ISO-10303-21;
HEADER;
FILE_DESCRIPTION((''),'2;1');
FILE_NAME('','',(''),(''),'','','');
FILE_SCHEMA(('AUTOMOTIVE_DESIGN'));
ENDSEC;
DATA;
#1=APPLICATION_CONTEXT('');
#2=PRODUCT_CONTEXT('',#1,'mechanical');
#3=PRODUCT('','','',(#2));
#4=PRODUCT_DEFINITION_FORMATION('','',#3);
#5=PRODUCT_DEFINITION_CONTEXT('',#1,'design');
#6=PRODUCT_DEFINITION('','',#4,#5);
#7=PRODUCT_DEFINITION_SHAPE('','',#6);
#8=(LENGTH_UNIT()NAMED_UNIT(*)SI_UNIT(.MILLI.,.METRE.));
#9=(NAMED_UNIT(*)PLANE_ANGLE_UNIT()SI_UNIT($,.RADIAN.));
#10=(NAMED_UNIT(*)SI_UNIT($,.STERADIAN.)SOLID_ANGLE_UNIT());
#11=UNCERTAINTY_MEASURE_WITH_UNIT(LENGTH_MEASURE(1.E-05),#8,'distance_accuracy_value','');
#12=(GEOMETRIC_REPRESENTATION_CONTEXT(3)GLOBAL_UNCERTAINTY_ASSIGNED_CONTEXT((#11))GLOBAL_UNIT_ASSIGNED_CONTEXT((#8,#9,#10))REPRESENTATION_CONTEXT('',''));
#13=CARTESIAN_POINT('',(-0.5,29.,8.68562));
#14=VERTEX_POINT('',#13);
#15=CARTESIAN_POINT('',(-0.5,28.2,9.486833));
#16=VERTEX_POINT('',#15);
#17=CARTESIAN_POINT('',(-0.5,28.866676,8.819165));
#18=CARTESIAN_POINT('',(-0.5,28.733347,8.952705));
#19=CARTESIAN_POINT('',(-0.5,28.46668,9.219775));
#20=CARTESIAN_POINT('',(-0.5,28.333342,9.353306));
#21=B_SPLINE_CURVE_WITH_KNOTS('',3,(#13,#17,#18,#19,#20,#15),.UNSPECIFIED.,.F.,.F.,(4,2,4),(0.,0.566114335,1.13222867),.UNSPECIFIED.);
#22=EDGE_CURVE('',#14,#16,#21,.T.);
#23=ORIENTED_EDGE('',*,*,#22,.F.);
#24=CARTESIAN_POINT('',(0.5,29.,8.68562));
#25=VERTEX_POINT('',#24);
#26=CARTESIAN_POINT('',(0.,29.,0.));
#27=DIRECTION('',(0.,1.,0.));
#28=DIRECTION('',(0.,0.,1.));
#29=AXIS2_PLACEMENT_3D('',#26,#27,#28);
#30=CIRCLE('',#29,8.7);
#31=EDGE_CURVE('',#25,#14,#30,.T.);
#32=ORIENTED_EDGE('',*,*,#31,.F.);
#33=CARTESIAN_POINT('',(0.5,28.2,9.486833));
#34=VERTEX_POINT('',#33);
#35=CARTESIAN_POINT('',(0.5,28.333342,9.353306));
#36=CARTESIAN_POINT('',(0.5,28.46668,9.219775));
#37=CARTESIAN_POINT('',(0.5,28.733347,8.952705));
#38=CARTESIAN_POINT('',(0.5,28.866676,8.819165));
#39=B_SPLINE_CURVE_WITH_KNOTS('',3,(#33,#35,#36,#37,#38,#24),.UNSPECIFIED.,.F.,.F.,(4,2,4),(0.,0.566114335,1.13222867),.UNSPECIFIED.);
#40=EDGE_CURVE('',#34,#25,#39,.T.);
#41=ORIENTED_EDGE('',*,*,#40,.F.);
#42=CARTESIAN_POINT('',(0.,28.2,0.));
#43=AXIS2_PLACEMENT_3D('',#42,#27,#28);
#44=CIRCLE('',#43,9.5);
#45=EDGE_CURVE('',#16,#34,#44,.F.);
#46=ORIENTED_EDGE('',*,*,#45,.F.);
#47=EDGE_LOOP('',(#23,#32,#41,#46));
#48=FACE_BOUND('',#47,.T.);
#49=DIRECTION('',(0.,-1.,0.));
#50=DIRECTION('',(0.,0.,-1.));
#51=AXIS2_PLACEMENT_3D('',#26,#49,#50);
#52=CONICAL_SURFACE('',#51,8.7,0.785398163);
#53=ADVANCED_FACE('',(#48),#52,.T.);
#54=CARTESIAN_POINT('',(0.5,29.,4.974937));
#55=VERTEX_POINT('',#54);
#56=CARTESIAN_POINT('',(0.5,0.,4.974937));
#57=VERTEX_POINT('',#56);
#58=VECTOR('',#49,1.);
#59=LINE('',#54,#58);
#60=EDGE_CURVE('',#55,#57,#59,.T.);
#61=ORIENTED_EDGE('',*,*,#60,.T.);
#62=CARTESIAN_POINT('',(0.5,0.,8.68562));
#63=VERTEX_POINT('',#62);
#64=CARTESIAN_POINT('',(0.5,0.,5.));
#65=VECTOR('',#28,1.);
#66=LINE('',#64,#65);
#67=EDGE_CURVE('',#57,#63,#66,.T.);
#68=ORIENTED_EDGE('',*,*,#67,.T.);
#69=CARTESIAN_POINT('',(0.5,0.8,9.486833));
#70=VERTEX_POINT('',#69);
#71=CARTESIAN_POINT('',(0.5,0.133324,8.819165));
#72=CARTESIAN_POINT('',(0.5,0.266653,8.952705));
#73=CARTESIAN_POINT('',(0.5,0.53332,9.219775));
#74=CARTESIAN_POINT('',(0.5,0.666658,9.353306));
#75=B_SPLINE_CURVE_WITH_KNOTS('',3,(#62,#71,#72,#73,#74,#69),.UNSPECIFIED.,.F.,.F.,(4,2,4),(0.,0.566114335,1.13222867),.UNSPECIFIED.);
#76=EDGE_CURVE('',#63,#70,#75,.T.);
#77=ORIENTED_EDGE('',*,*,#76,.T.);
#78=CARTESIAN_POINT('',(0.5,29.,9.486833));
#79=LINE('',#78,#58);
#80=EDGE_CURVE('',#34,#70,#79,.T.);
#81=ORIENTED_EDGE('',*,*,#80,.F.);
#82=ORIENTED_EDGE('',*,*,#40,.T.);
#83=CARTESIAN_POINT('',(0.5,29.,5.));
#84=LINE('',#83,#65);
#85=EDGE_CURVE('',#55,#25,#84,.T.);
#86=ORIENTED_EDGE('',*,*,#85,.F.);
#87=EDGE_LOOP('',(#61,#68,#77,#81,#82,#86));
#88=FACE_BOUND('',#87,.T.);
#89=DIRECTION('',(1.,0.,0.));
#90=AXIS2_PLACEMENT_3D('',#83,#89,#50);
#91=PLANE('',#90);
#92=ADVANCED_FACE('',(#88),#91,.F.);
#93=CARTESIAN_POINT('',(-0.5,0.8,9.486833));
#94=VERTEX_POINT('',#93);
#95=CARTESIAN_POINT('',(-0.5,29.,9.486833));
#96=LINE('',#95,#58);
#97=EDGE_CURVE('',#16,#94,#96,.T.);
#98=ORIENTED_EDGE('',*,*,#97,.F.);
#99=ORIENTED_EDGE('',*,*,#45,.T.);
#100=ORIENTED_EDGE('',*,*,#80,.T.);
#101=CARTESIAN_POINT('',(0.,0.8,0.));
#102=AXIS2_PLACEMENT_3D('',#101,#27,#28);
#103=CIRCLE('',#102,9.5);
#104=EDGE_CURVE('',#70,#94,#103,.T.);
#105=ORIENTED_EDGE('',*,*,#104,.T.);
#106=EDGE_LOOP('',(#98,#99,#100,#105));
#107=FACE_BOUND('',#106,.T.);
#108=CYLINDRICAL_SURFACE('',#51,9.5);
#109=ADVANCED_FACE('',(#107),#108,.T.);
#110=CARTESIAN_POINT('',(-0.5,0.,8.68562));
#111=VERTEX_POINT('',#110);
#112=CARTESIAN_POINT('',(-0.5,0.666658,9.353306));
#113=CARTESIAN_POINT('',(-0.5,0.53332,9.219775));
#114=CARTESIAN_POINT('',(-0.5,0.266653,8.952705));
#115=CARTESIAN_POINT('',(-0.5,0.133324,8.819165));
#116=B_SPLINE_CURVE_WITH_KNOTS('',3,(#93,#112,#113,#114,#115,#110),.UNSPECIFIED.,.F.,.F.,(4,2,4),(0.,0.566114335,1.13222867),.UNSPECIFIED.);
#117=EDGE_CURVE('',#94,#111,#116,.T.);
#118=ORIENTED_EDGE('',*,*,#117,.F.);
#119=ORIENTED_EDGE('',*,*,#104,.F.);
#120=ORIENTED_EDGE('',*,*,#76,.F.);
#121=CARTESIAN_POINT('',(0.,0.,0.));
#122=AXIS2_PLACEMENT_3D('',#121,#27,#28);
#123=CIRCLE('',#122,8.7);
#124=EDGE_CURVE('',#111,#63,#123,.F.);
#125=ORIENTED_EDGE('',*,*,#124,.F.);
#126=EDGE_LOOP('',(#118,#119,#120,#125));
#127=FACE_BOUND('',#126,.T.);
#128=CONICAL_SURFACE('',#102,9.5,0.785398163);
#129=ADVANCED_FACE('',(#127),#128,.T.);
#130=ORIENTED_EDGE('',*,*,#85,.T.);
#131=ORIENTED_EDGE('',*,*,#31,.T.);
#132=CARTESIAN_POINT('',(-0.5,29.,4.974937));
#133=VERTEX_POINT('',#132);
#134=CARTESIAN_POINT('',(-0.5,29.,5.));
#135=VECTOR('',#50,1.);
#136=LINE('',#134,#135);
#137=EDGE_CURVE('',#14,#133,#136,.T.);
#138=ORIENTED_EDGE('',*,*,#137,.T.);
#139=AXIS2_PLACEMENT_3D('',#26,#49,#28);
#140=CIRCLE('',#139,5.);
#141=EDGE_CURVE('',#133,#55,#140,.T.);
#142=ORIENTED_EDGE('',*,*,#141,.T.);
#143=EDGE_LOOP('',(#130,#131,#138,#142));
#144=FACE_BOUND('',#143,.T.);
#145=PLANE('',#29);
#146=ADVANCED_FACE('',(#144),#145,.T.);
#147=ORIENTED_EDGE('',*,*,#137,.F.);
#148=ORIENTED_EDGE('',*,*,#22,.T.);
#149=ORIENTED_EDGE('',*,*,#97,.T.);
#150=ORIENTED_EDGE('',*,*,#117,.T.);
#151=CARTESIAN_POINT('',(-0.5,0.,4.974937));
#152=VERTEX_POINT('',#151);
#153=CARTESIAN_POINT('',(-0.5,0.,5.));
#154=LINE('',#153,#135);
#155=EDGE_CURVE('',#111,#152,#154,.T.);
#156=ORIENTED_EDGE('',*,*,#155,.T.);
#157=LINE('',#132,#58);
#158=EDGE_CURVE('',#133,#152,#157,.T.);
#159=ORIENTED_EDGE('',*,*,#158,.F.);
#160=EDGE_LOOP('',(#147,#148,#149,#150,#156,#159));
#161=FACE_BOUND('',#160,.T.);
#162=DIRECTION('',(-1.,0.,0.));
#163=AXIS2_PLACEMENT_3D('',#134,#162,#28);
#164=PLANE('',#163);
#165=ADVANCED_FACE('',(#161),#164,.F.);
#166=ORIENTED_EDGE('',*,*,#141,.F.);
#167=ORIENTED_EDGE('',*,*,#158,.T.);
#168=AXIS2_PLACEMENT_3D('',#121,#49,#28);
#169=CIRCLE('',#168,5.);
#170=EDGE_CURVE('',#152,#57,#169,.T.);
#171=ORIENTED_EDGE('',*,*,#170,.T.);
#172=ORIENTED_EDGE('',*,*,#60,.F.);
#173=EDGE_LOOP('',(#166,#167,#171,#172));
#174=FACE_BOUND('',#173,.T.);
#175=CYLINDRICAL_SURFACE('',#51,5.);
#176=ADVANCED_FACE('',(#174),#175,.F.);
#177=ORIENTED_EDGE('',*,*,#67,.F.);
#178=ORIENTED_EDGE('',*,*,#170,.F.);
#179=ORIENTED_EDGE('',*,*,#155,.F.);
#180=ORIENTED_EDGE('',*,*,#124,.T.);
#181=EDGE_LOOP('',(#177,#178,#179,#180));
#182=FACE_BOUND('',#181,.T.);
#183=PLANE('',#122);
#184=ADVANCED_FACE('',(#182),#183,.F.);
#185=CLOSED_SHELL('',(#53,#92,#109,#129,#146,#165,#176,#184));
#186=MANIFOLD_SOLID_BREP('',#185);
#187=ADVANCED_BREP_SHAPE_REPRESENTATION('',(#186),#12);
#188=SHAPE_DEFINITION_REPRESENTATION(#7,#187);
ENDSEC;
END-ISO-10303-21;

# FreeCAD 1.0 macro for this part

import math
import FreeCAD as App
import Part
import Sketcher


def edges_at(feature, points):
    """Names of the edges that pass closest to the given points."""
    edges = feature.Shape.Edges
    near = lambda p: min(range(len(edges)), key=lambda i: edges[i].distToShape(Part.Vertex(*p))[0])
    return sorted({f"Edge{near(p) + 1}" for p in points})

doc = App.newDocument("Part")
body = doc.addObject("PartDesign::Body", "Body")

sketch1 = doc.addObject("Sketcher::SketchObject", "Sketch")
body.addObject(sketch1)
sketch1.AttachmentSupport = (doc.XZ_Plane, [""])
sketch1.MapMode = "FlatFace"
sketch1.addGeometry([
    Part.ArcOfCircle(Part.Circle(App.Vector(0, 0, 0), App.Vector(0, 0, 1), 9.5), math.radians(93.016961), math.radians(446.983039)),
    Part.LineSegment(App.Vector(-0.5, 9.486833, 0), App.Vector(-0.5, 4.974937, 0)),
    Part.ArcOfCircle(Part.Circle(App.Vector(0, 0, 0), App.Vector(0, 0, 1), 5), math.radians(95.73917), math.radians(444.26083)),
    Part.LineSegment(App.Vector(0.5, 4.974937, 0), App.Vector(0.5, 9.486833, 0)),
], False)
sketch1.addConstraint([
    Sketcher.Constraint("Coincident", 0, 1, 1, 1),
    Sketcher.Constraint("Coincident", 1, 2, 2, 1),
    Sketcher.Constraint("Coincident", 2, 2, 3, 1),
    Sketcher.Constraint("Coincident", 3, 2, 0, 2),
    Sketcher.Constraint("Vertical", 1),
    Sketcher.Constraint("Vertical", 3),
    Sketcher.Constraint("Coincident", 0, 3, -1, 1),
    Sketcher.Constraint("Coincident", 2, 3, -1, 1),
    Sketcher.Constraint("Horizontal", 1, 2, 2, 2),
    Sketcher.Constraint("Radius", 2, 5.0),
    Sketcher.Constraint("Radius", 0, 9.5),
    Sketcher.Constraint("DistanceX", 1, 2, 2, 2, 1.0),
])
pad1 = doc.addObject("PartDesign::Pad", "Pad")
body.addObject(pad1)
pad1.Profile = sketch1
pad1.Length = 29
pad1.Reversed = True
doc.recompute()

chamfer = doc.addObject("PartDesign::Chamfer", "Chamfer")
body.addObject(chamfer)
chamfer.Base = (pad1, edges_at(pad1, [(0, 29, -9.5), (0, 0, -9.5)]))
chamfer.Size = 0.8

doc.recompute()
